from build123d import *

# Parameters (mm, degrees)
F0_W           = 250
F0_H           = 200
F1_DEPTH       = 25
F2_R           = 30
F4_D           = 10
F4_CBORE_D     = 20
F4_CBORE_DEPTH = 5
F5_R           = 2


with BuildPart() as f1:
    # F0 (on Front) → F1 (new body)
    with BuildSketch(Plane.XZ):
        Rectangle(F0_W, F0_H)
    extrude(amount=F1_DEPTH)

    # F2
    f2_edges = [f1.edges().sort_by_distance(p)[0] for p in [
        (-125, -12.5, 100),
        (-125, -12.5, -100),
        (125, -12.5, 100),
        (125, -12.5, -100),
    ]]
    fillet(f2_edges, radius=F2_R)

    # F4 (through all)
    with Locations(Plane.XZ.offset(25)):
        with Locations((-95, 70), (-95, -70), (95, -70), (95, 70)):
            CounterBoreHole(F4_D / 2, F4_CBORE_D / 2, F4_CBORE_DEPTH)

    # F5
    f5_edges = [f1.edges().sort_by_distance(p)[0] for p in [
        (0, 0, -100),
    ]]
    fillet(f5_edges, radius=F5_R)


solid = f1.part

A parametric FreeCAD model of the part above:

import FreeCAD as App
import Part
import Sketcher
Q = App.Units.Quantity


def edges_at(feature, points):
    """Names of the edges that pass closest to the given points."""
    edges = feature.Shape.Edges
    near = lambda p: min(range(len(edges)), key=lambda i: edges[i].distToShape(Part.Vertex(*p))[0])
    return sorted({f"Edge{near(p) + 1}" for p in points})


def add_polygon(sketch, points):
    """Adds a closed chain of lines whose ends are joined by coincident constraints."""
    first, n = sketch.GeometryCount, len(points)
    for a, b in zip(points, points[1:] + points[:1]):
        sketch.addGeometry(Part.LineSegment(App.Vector(*a, 0), App.Vector(*b, 0)), False)
    for i in range(n):
        sketch.addConstraint(Sketcher.Constraint("Coincident", first + i, 2, first + (i + 1) % n, 1))

doc = App.newDocument("Part")
body = doc.addObject("PartDesign::Body", "Body")

sketch1 = body.newObject("Sketcher::SketchObject", "Sketch")
sketch1.AttachmentSupport = (doc.getObject("XZ_Plane"), [""])
sketch1.MapMode = "FlatFace"
add_polygon(sketch1, [(-125, 100), (-125, -100), (125, -100), (125, 100)])
sketch1.addConstraint([
    Sketcher.Constraint("Vertical", 0),
    Sketcher.Constraint("Horizontal", 1),
    Sketcher.Constraint("Vertical", 2),
    Sketcher.Constraint("Horizontal", 3),
    Sketcher.Constraint("Symmetric", 0, 2, 2, 2, -1, 1),
    Sketcher.Constraint("DistanceX", 1, 1, 1, 2, Q("250 mm")),
    Sketcher.Constraint("DistanceY", 0, 2, 0, 1, Q("200 mm")),
])
pad1 = body.newObject("PartDesign::Pad", "Pad")
pad1.Profile = sketch1
pad1.Length = 25
doc.recompute()

fillet = body.newObject("PartDesign::Fillet", "Fillet")
fillet.Base = (pad1, edges_at(pad1, [
    (-125, -12.5, 100),
    (-125, -12.5, -100),
    (125, -12.5, 100),
    (125, -12.5, -100),
]))
fillet.Radius = 30

sketch2 = body.newObject("Sketcher::SketchObject", "Sketch001")
sketch2.AttachmentSupport = (doc.getObject("XZ_Plane"), [""])
sketch2.MapMode = "FlatFace"
sketch2.AttachmentOffset = App.Placement(App.Vector(0, 0, 25), App.Rotation())
sketch2.addGeometry([
    Part.Circle(App.Vector(-95, 70, 0), App.Vector(0, 0, 1), 5),
    Part.Circle(App.Vector(-95, -70, 0), App.Vector(0, 0, 1), 5),
    Part.Circle(App.Vector(95, -70, 0), App.Vector(0, 0, 1), 5),
    Part.Circle(App.Vector(95, 70, 0), App.Vector(0, 0, 1), 5),
], False)
sketch2.addConstraint([
    Sketcher.Constraint("Equal", 0, 1),
    Sketcher.Constraint("Equal", 1, 2),
    Sketcher.Constraint("Equal", 2, 3),
    Sketcher.Constraint("Symmetric", 0, 3, 2, 3, -1, 1),
    Sketcher.Constraint("Symmetric", 1, 3, 3, 3, -1, 1),
    Sketcher.Constraint("Symmetric", 1, 3, 2, 3, -2),
    Sketcher.Constraint("Diameter", 0, Q("10 mm")),
    Sketcher.Constraint("DistanceX", 0, 3, -1, 1, Q("95 mm")),
    Sketcher.Constraint("DistanceY", -1, 1, 0, 3, Q("70 mm")),
])
doc.recompute()
hole = body.newObject("PartDesign::Hole", "Hole")
hole.Profile = sketch2
hole.ThreadType = "None"
hole.Diameter = 10
hole.DepthType = "ThroughAll"
hole.HoleCutType = "Counterbore"
hole.HoleCutDiameter = 20
hole.HoleCutDepth = 5
doc.recompute()

fillet2 = body.newObject("PartDesign::Fillet", "Fillet001")
fillet2.Base = (hole, edges_at(hole, [(0, 0, -100)]))
fillet2.Radius = 2

doc.recompute()
